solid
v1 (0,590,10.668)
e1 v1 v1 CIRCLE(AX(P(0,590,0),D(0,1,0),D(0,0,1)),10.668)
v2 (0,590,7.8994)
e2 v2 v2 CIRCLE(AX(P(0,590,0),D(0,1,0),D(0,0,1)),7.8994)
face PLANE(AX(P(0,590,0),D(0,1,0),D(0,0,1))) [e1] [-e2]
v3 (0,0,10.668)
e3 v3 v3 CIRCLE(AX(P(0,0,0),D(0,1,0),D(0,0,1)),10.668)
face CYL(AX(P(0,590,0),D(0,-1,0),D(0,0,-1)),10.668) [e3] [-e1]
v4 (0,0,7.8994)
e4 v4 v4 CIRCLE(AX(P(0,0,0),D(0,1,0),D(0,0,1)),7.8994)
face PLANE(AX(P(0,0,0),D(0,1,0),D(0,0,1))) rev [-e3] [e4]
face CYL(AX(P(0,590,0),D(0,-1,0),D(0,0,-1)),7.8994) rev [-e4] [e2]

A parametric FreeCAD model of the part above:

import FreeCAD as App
import Part
import Sketcher
Q = App.Units.Quantity

doc = App.newDocument("Part")
body = doc.addObject("PartDesign::Body", "Body")

# Sketch on XZ plane
sketch1 = doc.addObject("Sketcher::SketchObject", "Sketch")
body.addObject(sketch1)
sketch1.AttachmentSupport = (doc.XZ_Plane, [""])
sketch1.MapMode = "FlatFace"
sketch1.addGeometry(Part.Circle(App.Vector(0, 0, 0), App.Vector(0, 0, 1), 11), False)
sketch1.addGeometry(Part.Circle(App.Vector(0, 0, 0), App.Vector(0, 0, 1), 8), False)
sketch1.addConstraint(Sketcher.Constraint("Coincident", 0, 3, -1, 1))
sketch1.addConstraint(Sketcher.Constraint("Coincident", 1, 3, -1, 1))
sketch1.addConstraint(Sketcher.Constraint("Diameter", 0, Q("0.84 in")))
sketch1.addConstraint(Sketcher.Constraint("Diameter", 1, Q("0.622 in")))
pad1 = doc.addObject("PartDesign::Pad", "Pad")
body.addObject(pad1)
pad1.Profile = sketch1
pad1.Length = 590
pad1.Reversed = True

doc.recompute()
